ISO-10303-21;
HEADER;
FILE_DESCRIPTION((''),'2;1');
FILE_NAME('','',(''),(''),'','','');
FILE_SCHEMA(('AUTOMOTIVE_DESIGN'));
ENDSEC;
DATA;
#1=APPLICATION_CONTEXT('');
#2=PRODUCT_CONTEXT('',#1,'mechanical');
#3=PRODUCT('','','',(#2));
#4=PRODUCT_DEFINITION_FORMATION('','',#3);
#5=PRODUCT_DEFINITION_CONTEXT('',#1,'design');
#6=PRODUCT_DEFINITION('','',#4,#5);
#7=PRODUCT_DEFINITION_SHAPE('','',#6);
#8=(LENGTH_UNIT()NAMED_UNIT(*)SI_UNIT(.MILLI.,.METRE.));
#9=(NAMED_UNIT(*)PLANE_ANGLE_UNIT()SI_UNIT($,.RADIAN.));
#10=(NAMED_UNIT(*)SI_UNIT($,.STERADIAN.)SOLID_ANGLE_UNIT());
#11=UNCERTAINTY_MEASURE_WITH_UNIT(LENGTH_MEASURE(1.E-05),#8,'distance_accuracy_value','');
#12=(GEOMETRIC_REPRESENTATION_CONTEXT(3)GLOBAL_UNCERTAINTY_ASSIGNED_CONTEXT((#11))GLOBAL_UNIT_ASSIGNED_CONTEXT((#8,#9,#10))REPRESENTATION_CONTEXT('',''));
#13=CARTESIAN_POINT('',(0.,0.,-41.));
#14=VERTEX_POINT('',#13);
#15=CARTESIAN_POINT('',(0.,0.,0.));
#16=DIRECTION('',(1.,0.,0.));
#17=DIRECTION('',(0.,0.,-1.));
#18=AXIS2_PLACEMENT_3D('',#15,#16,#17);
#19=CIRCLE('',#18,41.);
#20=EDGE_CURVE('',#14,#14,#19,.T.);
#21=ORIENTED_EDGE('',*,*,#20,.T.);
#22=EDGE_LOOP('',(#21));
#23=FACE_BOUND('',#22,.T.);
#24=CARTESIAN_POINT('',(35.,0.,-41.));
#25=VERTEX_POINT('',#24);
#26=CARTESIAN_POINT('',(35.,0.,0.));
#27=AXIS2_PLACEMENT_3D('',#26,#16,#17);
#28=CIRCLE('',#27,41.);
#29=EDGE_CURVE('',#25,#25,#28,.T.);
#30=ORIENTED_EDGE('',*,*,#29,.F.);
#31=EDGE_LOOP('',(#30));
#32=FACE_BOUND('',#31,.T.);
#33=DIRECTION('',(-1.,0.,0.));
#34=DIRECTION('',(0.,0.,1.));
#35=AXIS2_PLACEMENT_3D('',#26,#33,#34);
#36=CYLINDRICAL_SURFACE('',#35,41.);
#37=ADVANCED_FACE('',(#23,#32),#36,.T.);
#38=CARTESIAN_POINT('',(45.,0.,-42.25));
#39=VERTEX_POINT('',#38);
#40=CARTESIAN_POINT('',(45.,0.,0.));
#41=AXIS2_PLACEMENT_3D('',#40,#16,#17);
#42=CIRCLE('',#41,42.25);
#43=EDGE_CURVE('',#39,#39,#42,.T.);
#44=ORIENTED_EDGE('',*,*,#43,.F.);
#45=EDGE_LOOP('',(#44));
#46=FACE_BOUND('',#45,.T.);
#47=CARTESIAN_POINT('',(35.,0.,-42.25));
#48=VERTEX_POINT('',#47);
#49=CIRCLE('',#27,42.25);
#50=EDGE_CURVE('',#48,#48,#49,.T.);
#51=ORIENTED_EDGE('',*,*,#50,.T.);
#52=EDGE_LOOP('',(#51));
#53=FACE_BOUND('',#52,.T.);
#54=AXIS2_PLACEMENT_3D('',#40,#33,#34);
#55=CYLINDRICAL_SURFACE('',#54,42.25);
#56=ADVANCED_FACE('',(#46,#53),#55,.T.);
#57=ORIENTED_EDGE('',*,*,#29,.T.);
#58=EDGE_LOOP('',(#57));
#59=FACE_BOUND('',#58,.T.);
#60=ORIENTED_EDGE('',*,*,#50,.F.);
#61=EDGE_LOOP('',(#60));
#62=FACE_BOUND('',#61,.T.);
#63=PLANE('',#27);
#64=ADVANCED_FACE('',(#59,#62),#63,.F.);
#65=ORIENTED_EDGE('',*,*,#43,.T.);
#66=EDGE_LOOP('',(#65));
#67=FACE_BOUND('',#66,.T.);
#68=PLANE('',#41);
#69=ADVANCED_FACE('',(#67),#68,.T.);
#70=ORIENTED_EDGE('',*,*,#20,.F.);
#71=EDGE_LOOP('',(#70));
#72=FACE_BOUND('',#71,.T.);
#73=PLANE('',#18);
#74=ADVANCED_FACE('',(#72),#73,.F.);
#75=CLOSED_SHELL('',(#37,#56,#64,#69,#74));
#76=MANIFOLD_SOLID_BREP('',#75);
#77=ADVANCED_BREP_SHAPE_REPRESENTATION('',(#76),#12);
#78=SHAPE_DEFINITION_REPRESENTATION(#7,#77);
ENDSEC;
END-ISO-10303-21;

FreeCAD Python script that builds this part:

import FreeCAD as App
import Part
import Sketcher

V = App.Vector
Q = App.Units.Quantity

doc = App.newDocument("Part")
body = doc.addObject("PartDesign::Body", "Body")

sketch1 = body.newObject("Sketcher::SketchObject", "Sketch")
sketch1.AttachmentSupport = (doc.getObject("YZ_Plane"), [""])
sketch1.MapMode = "FlatFace"
sketch1.addGeometry(Part.Circle(V(0, 0, 0), V(0, 0, 1), 41), False)
sketch1.addConstraint([
    Sketcher.Constraint("Coincident", 0, 3, -1, 1),
    Sketcher.Constraint("Diameter", 0, Q("82 mm")),
])
pad1 = body.newObject("PartDesign::Pad", "Pad")
pad1.Profile = sketch1
pad1.Length = 35

sketch2 = body.newObject("Sketcher::SketchObject", "Sketch001")
sketch2.AttachmentSupport = (doc.getObject("YZ_Plane"), [""])
sketch2.MapMode = "FlatFace"
sketch2.AttachmentOffset = App.Placement(V(0, 0, 35), App.Rotation())
sketch2.addGeometry(Part.Circle(V(0, 0, 0), V(0, 0, 1), 42.25), False)
sketch2.addConstraint([
    Sketcher.Constraint("Coincident", 0, 3, -1, 1),
    Sketcher.Constraint("Diameter", 0, Q("84.5 mm")),
])
pad2 = body.newObject("PartDesign::Pad", "Pad001")
pad2.Profile = sketch2
pad2.Length = 10

doc.recompute()
